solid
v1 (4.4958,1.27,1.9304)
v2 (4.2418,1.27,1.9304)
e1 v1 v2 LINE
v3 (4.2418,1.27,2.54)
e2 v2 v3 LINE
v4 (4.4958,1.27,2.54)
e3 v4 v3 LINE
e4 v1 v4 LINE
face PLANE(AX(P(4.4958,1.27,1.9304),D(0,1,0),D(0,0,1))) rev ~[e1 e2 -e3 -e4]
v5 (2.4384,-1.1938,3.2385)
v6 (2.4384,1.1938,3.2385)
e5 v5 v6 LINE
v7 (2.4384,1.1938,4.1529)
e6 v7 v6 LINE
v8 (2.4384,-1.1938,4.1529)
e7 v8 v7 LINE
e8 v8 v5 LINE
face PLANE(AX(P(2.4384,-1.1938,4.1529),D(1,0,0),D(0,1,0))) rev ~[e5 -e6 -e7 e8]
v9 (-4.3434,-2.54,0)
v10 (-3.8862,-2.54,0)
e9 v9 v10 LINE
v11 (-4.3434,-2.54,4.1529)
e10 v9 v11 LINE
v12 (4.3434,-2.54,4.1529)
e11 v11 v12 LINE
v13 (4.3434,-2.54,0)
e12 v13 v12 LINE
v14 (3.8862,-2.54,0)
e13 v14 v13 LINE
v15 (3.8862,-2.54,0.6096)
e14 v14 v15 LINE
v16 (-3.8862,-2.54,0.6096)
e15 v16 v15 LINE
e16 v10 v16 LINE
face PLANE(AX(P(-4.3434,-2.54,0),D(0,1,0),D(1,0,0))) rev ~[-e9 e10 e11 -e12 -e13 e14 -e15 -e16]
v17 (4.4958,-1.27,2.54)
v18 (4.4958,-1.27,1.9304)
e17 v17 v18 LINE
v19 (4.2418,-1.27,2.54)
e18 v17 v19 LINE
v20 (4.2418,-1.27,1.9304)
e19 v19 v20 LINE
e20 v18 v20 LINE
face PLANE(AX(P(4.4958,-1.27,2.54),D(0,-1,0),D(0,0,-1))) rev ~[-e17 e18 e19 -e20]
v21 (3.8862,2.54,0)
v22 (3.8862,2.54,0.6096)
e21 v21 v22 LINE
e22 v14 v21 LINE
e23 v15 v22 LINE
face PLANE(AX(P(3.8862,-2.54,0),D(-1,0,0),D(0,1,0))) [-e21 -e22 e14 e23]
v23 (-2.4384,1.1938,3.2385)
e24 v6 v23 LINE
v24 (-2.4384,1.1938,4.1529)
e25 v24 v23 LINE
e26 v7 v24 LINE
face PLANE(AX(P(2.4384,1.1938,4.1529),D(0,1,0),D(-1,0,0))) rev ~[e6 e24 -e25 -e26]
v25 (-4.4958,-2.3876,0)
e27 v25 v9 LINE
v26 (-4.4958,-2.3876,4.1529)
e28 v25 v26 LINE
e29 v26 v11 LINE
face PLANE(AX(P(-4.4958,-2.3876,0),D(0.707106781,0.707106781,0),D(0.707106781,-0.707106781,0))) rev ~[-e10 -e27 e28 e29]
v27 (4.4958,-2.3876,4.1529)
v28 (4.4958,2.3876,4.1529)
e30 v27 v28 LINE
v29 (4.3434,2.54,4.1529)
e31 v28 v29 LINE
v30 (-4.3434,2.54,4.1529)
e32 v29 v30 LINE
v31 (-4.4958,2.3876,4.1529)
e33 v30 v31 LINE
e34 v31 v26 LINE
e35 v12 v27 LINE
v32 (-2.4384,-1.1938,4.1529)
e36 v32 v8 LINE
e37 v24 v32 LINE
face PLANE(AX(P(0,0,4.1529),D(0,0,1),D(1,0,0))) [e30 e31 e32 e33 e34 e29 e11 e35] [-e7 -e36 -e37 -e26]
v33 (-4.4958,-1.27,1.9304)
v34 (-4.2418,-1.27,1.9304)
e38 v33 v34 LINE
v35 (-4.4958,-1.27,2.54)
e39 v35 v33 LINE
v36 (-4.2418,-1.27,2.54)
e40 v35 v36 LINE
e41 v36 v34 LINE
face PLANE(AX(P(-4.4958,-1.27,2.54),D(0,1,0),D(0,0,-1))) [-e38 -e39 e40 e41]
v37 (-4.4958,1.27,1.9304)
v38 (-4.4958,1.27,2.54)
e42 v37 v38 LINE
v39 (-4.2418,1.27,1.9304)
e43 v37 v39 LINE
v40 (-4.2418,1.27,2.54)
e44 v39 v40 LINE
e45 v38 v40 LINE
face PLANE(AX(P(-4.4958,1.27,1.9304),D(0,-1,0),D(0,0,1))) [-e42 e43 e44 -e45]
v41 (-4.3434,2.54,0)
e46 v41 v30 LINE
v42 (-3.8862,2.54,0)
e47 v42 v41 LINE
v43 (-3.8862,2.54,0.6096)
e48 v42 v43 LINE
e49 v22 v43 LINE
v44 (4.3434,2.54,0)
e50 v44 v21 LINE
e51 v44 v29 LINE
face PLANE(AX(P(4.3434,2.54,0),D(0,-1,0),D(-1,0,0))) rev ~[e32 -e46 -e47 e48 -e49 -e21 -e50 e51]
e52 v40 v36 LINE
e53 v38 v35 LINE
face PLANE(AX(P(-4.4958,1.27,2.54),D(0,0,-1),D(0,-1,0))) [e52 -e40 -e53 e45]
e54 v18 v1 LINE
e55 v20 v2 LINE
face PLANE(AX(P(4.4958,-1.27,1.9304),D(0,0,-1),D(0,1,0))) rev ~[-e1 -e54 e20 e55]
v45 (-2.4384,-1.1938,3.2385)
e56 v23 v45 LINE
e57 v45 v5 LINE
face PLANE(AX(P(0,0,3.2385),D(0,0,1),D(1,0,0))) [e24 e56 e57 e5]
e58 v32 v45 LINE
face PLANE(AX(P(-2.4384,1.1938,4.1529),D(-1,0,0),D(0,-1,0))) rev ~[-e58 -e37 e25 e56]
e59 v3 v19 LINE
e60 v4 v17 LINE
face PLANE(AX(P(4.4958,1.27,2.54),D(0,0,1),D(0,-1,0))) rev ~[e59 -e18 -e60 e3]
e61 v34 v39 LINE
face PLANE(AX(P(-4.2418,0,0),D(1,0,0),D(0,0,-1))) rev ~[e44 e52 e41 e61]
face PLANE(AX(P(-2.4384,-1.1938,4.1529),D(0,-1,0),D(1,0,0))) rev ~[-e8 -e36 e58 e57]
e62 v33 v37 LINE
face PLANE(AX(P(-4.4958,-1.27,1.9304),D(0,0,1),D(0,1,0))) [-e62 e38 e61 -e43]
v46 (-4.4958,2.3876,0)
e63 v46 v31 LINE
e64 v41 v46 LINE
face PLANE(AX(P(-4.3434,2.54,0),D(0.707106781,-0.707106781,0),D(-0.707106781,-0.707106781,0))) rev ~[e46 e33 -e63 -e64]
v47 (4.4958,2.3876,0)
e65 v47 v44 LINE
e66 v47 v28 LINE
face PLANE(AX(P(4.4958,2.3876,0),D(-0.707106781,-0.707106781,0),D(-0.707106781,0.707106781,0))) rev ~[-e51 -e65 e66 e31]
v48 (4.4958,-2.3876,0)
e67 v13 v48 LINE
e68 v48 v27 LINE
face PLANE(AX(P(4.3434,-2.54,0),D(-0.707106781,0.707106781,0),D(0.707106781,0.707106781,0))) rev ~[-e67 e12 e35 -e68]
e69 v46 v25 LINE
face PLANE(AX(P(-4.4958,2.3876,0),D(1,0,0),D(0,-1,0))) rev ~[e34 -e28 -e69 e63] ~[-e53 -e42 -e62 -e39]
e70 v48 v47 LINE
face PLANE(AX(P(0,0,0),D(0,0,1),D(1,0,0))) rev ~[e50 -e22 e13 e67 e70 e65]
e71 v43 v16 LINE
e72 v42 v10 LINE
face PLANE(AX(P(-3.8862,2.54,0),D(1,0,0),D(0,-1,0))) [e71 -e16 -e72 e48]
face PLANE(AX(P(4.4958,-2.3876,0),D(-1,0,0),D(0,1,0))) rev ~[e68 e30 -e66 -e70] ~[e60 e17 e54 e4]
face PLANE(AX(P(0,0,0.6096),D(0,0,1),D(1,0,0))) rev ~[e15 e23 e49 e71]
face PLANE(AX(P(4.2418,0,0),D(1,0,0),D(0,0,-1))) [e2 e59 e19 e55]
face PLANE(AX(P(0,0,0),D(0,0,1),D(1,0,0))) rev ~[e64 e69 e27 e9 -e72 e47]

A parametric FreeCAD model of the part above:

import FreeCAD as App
import Part
import Sketcher
from FreeCAD import Vector
Q = App.Units.Quantity


def add_polygon(sketch, points):
    """Adds a closed chain of lines whose ends are joined by coincident constraints."""
    first, n = sketch.GeometryCount, len(points)
    for a, b in zip(points, points[1:] + points[:1]):
        sketch.addGeometry(Part.LineSegment(App.Vector(*a, 0), App.Vector(*b, 0)), False)
    for i in range(n):
        sketch.addConstraint(Sketcher.Constraint("Coincident", first + i, 2, first + (i + 1) % n, 1))

doc = App.newDocument("Part")
body = doc.addObject("PartDesign::Body", "Body")

# Sketch on XY plane
sketch1 = body.newObject("Sketcher::SketchObject", "Sketch")
sketch1.AttachmentSupport = (doc.getObject("XY_Plane"), [""])
sketch1.MapMode = "FlatFace"
add_polygon(sketch1, [(-4.4958, 2.3876), (-4.4958, -2.3876), (-4.3434, -2.54), (4.3434, -2.54), (4.4958, -2.3876), (4.4958, 2.3876), (4.3434, 2.54), (-4.3434, 2.54)])  # lines 0-7
sketch1.addConstraint([
    Sketcher.Constraint("Vertical", 0),
    Sketcher.Constraint("Horizontal", 2),
    Sketcher.Constraint("Vertical", 4),
    Sketcher.Constraint("Horizontal", 6),
    Sketcher.Constraint("Symmetric", 0, 2, 4, 2, -1, 1),
    Sketcher.Constraint("Symmetric", 1, 2, 5, 2, -1, 1),
    Sketcher.Constraint("Perpendicular", 1, 3),
    Sketcher.Constraint("Perpendicular", 5, 7),
    Sketcher.Constraint("Horizontal", 0, 2, 3, 2),
    Sketcher.Constraint("Horizontal", 4, 2, 7, 2),
    Sketcher.Constraint("Vertical", 2, 2, 5, 2),
    Sketcher.Constraint("DistanceY", 1, 2, -1, 1, Q("0.1 in")),
    Sketcher.Constraint("DistanceX", 2, 1, 2, 2, Q("0.342 in")),
    Sketcher.Constraint("DistanceY", 0, 2, 0, 1, Q("0.188 in")),
])
pad1 = body.newObject("PartDesign::Pad", "Pad")
pad1.Profile = sketch1
pad1.Length = Q("0.1635 in")

# Sketch on XY plane
sketch2 = body.newObject("Sketcher::SketchObject", "Sketch001")
sketch2.AttachmentSupport = (doc.getObject("XY_Plane"), [""])
sketch2.MapMode = "FlatFace"
sketch2.AttachmentOffset = App.Placement(Vector(0, 0, 0.1635 * 25.4), App.Rotation())
add_polygon(sketch2, [(2.4384, 1.1938), (-2.4384, 1.1938), (-2.4384, -1.1938), (2.4384, -1.1938)])  # lines 0-3
sketch2.addConstraint([
    Sketcher.Constraint("Horizontal", 0),
    Sketcher.Constraint("Vertical", 1),
    Sketcher.Constraint("Horizontal", 2),
    Sketcher.Constraint("Vertical", 3),
    Sketcher.Constraint("Symmetric", 0, 2, 2, 2, -1, 1),
    Sketcher.Constraint("DistanceX", 0, 2, 0, 1, Q("0.192 in")),
    Sketcher.Constraint("DistanceY", 1, 2, 1, 1, Q("0.094 in")),
])
pocket1 = body.newObject("PartDesign::Pocket", "Pocket")
pocket1.Profile = sketch2
pocket1.Length = Q("0.036 in")

# Sketch on YZ plane
sketch3 = body.newObject("Sketcher::SketchObject", "Sketch002")
sketch3.AttachmentSupport = (doc.getObject("YZ_Plane"), [""])
sketch3.MapMode = "FlatFace"
sketch3.AttachmentOffset = App.Placement(Vector(0, 0, 0.177 * 25.4), App.Rotation())
add_polygon(sketch3, [(1.27, 1.9304), (1.27, 2.54), (-1.27, 2.54), (-1.27, 1.9304)])  # lines 0-3
sketch3.addConstraint([
    Sketcher.Constraint("Vertical", 0),
    Sketcher.Constraint("Horizontal", 1),
    Sketcher.Constraint("Vertical", 2),
    Sketcher.Constraint("Horizontal", 3),
    Sketcher.Constraint("DistanceX", 1, 2, 1, 1, Q("0.1 in")),
    Sketcher.Constraint("DistanceY", -1, 1, 0, 2, Q("0.1 in")),
    Sketcher.Constraint("DistanceY", 0, 1, 0, 2, Q("0.024 in")),
    Sketcher.Constraint("DistanceX", -1, 1, 0, 2, Q("0.05 in")),
])
pocket2 = body.newObject("PartDesign::Pocket", "Pocket001")
pocket2.Profile = sketch3
pocket2.Length = Q("0.01 in")

# Sketch on YZ plane
sketch4 = body.newObject("Sketcher::SketchObject", "Sketch003")
sketch4.AttachmentSupport = (doc.getObject("YZ_Plane"), [""])
sketch4.MapMode = "FlatFace"
sketch4.AttachmentOffset = App.Placement(Vector(0, 0, -0.177 * 25.4), App.Rotation())
add_polygon(sketch4, [(1.27, 1.9304), (1.27, 2.54), (-1.27, 2.54), (-1.27, 1.9304)])  # lines 0-3
sketch4.addConstraint([
    Sketcher.Constraint("Vertical", 0),
    Sketcher.Constraint("Horizontal", 1),
    Sketcher.Constraint("Vertical", 2),
    Sketcher.Constraint("Horizontal", 3),
    Sketcher.Constraint("DistanceX", 1, 2, 1, 1, Q("0.1 in")),
    Sketcher.Constraint("DistanceY", -1, 1, 0, 2, Q("0.1 in")),
    Sketcher.Constraint("DistanceY", 0, 1, 0, 2, Q("0.024 in")),
    Sketcher.Constraint("DistanceX", -1, 1, 0, 2, Q("0.05 in")),
])
pocket3 = body.newObject("PartDesign::Pocket", "Pocket002")
pocket3.Profile = sketch4
pocket3.Length = Q("0.01 in")
pocket3.Reversed = True

# Sketch on XY plane
sketch5 = body.newObject("Sketcher::SketchObject", "Sketch004")
sketch5.AttachmentSupport = (doc.getObject("XY_Plane"), [""])
sketch5.MapMode = "FlatFace"
add_polygon(sketch5, [(3.8862, 2.54), (-3.8862, 2.54), (-3.8862, -2.54), (3.8862, -2.54)])  # lines 0-3
sketch5.addConstraint([
    Sketcher.Constraint("Horizontal", 0),
    Sketcher.Constraint("Vertical", 1),
    Sketcher.Constraint("Horizontal", 2),
    Sketcher.Constraint("Vertical", 3),
    Sketcher.Constraint("Symmetric", 0, 2, 2, 2, -1, 1),
    Sketcher.Constraint("DistanceY", 1, 2, 1, 1, Q("0.2 in")),
    Sketcher.Constraint("DistanceX", 0, 2, 0, 1, Q("0.306 in")),
])
pocket4 = body.newObject("PartDesign::Pocket", "Pocket003")
pocket4.Profile = sketch5
pocket4.Length = Q("0.024 in")
pocket4.Reversed = True

doc.recompute()
